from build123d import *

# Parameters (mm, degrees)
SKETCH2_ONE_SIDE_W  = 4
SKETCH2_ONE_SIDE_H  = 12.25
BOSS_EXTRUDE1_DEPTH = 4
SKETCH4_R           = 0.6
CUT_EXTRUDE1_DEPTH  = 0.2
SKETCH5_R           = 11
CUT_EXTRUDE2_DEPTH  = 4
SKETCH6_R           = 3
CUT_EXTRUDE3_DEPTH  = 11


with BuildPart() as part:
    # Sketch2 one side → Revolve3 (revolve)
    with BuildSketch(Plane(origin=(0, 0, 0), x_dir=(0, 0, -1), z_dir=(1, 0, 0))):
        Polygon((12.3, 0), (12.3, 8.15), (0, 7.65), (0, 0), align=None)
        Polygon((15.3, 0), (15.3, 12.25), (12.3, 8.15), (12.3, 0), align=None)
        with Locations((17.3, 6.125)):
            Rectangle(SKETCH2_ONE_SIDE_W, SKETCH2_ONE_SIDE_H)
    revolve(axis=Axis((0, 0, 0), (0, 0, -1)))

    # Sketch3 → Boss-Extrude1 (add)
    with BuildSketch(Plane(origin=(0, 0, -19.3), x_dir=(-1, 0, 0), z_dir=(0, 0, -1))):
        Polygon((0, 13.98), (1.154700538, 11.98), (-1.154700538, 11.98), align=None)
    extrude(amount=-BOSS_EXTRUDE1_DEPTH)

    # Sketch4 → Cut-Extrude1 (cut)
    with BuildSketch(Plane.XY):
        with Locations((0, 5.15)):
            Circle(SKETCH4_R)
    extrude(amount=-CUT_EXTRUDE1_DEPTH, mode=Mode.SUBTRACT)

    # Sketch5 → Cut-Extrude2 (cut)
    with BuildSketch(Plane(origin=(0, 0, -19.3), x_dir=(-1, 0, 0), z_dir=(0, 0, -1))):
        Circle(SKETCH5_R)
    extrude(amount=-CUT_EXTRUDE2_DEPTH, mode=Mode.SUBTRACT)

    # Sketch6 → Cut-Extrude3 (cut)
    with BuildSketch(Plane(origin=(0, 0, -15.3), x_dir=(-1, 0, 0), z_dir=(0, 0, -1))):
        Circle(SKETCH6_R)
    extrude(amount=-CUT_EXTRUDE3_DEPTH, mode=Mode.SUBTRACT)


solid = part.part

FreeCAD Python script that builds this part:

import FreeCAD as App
import Part
import Sketcher
Q = App.Units.Quantity

doc = App.newDocument("Part")
params = doc.addObject("Spreadsheet::Sheet", "Params")
for row, (alias, value) in enumerate([
    ("sketch1_height", "4 mm"),
    ("sketch1_height2", "19.3 mm"),
    ("sketch1_width", "7.65 mm"),
    ("sketch1_width2", "12.25 mm"),
    ("revolution_angle", "360 deg"),
    ("pad1_length", "4 mm"),
    ("sketch3_diameter", "1.2 mm"),
    ("pocket1_length", "0.2 mm"),
    ("sketch4_diameter", "22 mm"),
    ("pocket2_length", "4 mm"),
    ("sketch5_diameter", "6 mm"),
    ("pocket3_length", "11 mm"),
], start=1):
    params.set(f"A{row}", alias)
    params.set(f"B{row}", "=" + value)
    params.setAlias(f"B{row}", alias)

body = doc.addObject("PartDesign::Body", "Body")

# Sketch on YZ plane
sketch1 = doc.addObject("Sketcher::SketchObject", "Sketch")
body.addObject(sketch1)
sketch1.AttachmentSupport = (doc.YZ_Plane, [""])
sketch1.MapMode = "FlatFace"
sketch1.addGeometry(Part.LineSegment(App.Vector(8.15, -12.3, 0), App.Vector(7.65, 0, 0)), False)
sketch1.addGeometry(Part.LineSegment(App.Vector(7.65, 0, 0), App.Vector(0, 0, 0)), False)
sketch1.addGeometry(Part.LineSegment(App.Vector(0, 0, 0), App.Vector(0, -19.3, 0)), False)
sketch1.addGeometry(Part.LineSegment(App.Vector(0, -19.3, 0), App.Vector(12.25, -19.3, 0)), False)
sketch1.addGeometry(Part.LineSegment(App.Vector(12.25, -19.3, 0), App.Vector(12.25, -15.3, 0)), False)
sketch1.addGeometry(Part.LineSegment(App.Vector(12.25, -15.3, 0), App.Vector(8.15, -12.3, 0)), False)
sketch1.addConstraint(Sketcher.Constraint("Coincident", 0, 2, 1, 1))
sketch1.addConstraint(Sketcher.Constraint("Coincident", 1, 2, 2, 1))
sketch1.addConstraint(Sketcher.Constraint("Coincident", 2, 2, 3, 1))
sketch1.addConstraint(Sketcher.Constraint("Coincident", 3, 2, 4, 1))
sketch1.addConstraint(Sketcher.Constraint("Coincident", 4, 2, 5, 1))
sketch1.addConstraint(Sketcher.Constraint("Coincident", 5, 2, 0, 1))
sketch1.addConstraint(Sketcher.Constraint("Horizontal", 1))
sketch1.addConstraint(Sketcher.Constraint("Vertical", 2))
sketch1.addConstraint(Sketcher.Constraint("Horizontal", 3))
sketch1.addConstraint(Sketcher.Constraint("Vertical", 4))
sketch1.addConstraint(Sketcher.Constraint("Coincident", 1, 2, -1, 1))
sketch1.addConstraint(Sketcher.Constraint("DistanceY", 4, 1, 4, 2, 4.0))
sketch1.addConstraint(Sketcher.Constraint("DistanceY", 2, 2, 2, 1, 19.3))
sketch1.addConstraint(Sketcher.Constraint("DistanceY", 4, 2, 5, 2, 3.0))
sketch1.addConstraint(Sketcher.Constraint("DistanceX", 1, 2, 1, 1, 7.65))
sketch1.addConstraint(Sketcher.Constraint("DistanceX", 3, 1, 3, 2, 12.25))
sketch1.addConstraint(Sketcher.Constraint("DistanceX", 5, 2, 4, 2, 4.1))
sketch1.setExpression("Constraints[11]", "Params.sketch1_height")
sketch1.setExpression("Constraints[12]", "Params.sketch1_height2")
sketch1.setExpression("Constraints[14]", "Params.sketch1_width")
sketch1.setExpression("Constraints[15]", "Params.sketch1_width2")
revolution = doc.addObject("PartDesign::Revolution", "Revolution")
body.addObject(revolution)
revolution.Profile = sketch1
revolution.ReferenceAxis = (sketch1, ["V_Axis"])
revolution.setExpression("Angle", "Params.revolution_angle")

# Sketch on XY plane
sketch2 = doc.addObject("Sketcher::SketchObject", "Sketch001")
body.addObject(sketch2)
sketch2.AttachmentSupport = (doc.XY_Plane, [""])
sketch2.MapMode = "FlatFace"
sketch2.AttachmentOffset = App.Placement(App.Vector(0, 0, -19.3), App.Rotation())
sketch2.addGeometry(Part.LineSegment(App.Vector(-1.154701, 11.98, 0), App.Vector(0, 13.98, 0)), False)
sketch2.addGeometry(Part.LineSegment(App.Vector(0, 13.98, 0), App.Vector(1.154701, 11.98, 0)), False)
sketch2.addGeometry(Part.LineSegment(App.Vector(1.154701, 11.98, 0), App.Vector(-1.154701, 11.98, 0)), False)
sketch2.addConstraint(Sketcher.Constraint("Coincident", 0, 2, 1, 1))
sketch2.addConstraint(Sketcher.Constraint("Coincident", 1, 2, 2, 1))
sketch2.addConstraint(Sketcher.Constraint("Coincident", 2, 2, 0, 1))
sketch2.addConstraint(Sketcher.Constraint("Horizontal", 2))
sketch2.addConstraint(Sketcher.Constraint("PointOnObject", 0, 2, -2))
sketch2.addConstraint(Sketcher.Constraint("Equal", 0, 1))
sketch2.addConstraint(Sketcher.Constraint("Angle", 0, Q("60 deg")))
sketch2.addConstraint(Sketcher.Constraint("DistanceY", 1, 2, 0, 2, 2.0))
sketch2.addConstraint(Sketcher.Constraint("DistanceY", -1, 1, 0, 2, 13.98))
pad1 = doc.addObject("PartDesign::Pad", "Pad")
body.addObject(pad1)
pad1.Profile = sketch2
pad1.setExpression("Length", "Params.pad1_length")

# Sketch on XY plane
sketch3 = doc.addObject("Sketcher::SketchObject", "Sketch002")
body.addObject(sketch3)
sketch3.AttachmentSupport = (doc.XY_Plane, [""])
sketch3.MapMode = "FlatFace"
sketch3.addGeometry(Part.Circle(App.Vector(0, 5.15, 0), App.Vector(0, 0, 1), 0.6), False)
sketch3.addConstraint(Sketcher.Constraint("PointOnObject", 0, 3, -2))
sketch3.addConstraint(Sketcher.Constraint("Diameter", 0, 1.2))
sketch3.addConstraint(Sketcher.Constraint("DistanceY", -1, 1, 0, 3, 5.15))
sketch3.setExpression("Constraints[1]", "Params.sketch3_diameter")
pocket1 = doc.addObject("PartDesign::Pocket", "Pocket")
body.addObject(pocket1)
pocket1.Profile = sketch3
pocket1.setExpression("Length", "Params.pocket1_length")

# Sketch on XY plane
sketch4 = doc.addObject("Sketcher::SketchObject", "Sketch003")
body.addObject(sketch4)
sketch4.AttachmentSupport = (doc.XY_Plane, [""])
sketch4.MapMode = "FlatFace"
sketch4.AttachmentOffset = App.Placement(App.Vector(0, 0, -19.3), App.Rotation())
sketch4.addGeometry(Part.Circle(App.Vector(0, 0, 0), App.Vector(0, 0, 1), 11), False)
sketch4.addConstraint(Sketcher.Constraint("Coincident", 0, 3, -1, 1))
sketch4.addConstraint(Sketcher.Constraint("Diameter", 0, 22.0))
sketch4.setExpression("Constraints[1]", "Params.sketch4_diameter")
pocket2 = doc.addObject("PartDesign::Pocket", "Pocket001")
body.addObject(pocket2)
pocket2.Profile = sketch4
pocket2.setExpression("Length", "Params.pocket2_length")
pocket2.Reversed = True

# Sketch on XY plane
sketch5 = doc.addObject("Sketcher::SketchObject", "Sketch004")
body.addObject(sketch5)
sketch5.AttachmentSupport = (doc.XY_Plane, [""])
sketch5.MapMode = "FlatFace"
sketch5.AttachmentOffset = App.Placement(App.Vector(0, 0, -15.3), App.Rotation())
sketch5.addGeometry(Part.Circle(App.Vector(0, 0, 0), App.Vector(0, 0, 1), 3), False)
sketch5.addConstraint(Sketcher.Constraint("Coincident", 0, 3, -1, 1))
sketch5.addConstraint(Sketcher.Constraint("Diameter", 0, 6.0))
sketch5.setExpression("Constraints[1]", "Params.sketch5_diameter")
pocket3 = doc.addObject("PartDesign::Pocket", "Pocket002")
body.addObject(pocket3)
pocket3.Profile = sketch5
pocket3.setExpression("Length", "Params.pocket3_length")
pocket3.Reversed = True

doc.recompute()
